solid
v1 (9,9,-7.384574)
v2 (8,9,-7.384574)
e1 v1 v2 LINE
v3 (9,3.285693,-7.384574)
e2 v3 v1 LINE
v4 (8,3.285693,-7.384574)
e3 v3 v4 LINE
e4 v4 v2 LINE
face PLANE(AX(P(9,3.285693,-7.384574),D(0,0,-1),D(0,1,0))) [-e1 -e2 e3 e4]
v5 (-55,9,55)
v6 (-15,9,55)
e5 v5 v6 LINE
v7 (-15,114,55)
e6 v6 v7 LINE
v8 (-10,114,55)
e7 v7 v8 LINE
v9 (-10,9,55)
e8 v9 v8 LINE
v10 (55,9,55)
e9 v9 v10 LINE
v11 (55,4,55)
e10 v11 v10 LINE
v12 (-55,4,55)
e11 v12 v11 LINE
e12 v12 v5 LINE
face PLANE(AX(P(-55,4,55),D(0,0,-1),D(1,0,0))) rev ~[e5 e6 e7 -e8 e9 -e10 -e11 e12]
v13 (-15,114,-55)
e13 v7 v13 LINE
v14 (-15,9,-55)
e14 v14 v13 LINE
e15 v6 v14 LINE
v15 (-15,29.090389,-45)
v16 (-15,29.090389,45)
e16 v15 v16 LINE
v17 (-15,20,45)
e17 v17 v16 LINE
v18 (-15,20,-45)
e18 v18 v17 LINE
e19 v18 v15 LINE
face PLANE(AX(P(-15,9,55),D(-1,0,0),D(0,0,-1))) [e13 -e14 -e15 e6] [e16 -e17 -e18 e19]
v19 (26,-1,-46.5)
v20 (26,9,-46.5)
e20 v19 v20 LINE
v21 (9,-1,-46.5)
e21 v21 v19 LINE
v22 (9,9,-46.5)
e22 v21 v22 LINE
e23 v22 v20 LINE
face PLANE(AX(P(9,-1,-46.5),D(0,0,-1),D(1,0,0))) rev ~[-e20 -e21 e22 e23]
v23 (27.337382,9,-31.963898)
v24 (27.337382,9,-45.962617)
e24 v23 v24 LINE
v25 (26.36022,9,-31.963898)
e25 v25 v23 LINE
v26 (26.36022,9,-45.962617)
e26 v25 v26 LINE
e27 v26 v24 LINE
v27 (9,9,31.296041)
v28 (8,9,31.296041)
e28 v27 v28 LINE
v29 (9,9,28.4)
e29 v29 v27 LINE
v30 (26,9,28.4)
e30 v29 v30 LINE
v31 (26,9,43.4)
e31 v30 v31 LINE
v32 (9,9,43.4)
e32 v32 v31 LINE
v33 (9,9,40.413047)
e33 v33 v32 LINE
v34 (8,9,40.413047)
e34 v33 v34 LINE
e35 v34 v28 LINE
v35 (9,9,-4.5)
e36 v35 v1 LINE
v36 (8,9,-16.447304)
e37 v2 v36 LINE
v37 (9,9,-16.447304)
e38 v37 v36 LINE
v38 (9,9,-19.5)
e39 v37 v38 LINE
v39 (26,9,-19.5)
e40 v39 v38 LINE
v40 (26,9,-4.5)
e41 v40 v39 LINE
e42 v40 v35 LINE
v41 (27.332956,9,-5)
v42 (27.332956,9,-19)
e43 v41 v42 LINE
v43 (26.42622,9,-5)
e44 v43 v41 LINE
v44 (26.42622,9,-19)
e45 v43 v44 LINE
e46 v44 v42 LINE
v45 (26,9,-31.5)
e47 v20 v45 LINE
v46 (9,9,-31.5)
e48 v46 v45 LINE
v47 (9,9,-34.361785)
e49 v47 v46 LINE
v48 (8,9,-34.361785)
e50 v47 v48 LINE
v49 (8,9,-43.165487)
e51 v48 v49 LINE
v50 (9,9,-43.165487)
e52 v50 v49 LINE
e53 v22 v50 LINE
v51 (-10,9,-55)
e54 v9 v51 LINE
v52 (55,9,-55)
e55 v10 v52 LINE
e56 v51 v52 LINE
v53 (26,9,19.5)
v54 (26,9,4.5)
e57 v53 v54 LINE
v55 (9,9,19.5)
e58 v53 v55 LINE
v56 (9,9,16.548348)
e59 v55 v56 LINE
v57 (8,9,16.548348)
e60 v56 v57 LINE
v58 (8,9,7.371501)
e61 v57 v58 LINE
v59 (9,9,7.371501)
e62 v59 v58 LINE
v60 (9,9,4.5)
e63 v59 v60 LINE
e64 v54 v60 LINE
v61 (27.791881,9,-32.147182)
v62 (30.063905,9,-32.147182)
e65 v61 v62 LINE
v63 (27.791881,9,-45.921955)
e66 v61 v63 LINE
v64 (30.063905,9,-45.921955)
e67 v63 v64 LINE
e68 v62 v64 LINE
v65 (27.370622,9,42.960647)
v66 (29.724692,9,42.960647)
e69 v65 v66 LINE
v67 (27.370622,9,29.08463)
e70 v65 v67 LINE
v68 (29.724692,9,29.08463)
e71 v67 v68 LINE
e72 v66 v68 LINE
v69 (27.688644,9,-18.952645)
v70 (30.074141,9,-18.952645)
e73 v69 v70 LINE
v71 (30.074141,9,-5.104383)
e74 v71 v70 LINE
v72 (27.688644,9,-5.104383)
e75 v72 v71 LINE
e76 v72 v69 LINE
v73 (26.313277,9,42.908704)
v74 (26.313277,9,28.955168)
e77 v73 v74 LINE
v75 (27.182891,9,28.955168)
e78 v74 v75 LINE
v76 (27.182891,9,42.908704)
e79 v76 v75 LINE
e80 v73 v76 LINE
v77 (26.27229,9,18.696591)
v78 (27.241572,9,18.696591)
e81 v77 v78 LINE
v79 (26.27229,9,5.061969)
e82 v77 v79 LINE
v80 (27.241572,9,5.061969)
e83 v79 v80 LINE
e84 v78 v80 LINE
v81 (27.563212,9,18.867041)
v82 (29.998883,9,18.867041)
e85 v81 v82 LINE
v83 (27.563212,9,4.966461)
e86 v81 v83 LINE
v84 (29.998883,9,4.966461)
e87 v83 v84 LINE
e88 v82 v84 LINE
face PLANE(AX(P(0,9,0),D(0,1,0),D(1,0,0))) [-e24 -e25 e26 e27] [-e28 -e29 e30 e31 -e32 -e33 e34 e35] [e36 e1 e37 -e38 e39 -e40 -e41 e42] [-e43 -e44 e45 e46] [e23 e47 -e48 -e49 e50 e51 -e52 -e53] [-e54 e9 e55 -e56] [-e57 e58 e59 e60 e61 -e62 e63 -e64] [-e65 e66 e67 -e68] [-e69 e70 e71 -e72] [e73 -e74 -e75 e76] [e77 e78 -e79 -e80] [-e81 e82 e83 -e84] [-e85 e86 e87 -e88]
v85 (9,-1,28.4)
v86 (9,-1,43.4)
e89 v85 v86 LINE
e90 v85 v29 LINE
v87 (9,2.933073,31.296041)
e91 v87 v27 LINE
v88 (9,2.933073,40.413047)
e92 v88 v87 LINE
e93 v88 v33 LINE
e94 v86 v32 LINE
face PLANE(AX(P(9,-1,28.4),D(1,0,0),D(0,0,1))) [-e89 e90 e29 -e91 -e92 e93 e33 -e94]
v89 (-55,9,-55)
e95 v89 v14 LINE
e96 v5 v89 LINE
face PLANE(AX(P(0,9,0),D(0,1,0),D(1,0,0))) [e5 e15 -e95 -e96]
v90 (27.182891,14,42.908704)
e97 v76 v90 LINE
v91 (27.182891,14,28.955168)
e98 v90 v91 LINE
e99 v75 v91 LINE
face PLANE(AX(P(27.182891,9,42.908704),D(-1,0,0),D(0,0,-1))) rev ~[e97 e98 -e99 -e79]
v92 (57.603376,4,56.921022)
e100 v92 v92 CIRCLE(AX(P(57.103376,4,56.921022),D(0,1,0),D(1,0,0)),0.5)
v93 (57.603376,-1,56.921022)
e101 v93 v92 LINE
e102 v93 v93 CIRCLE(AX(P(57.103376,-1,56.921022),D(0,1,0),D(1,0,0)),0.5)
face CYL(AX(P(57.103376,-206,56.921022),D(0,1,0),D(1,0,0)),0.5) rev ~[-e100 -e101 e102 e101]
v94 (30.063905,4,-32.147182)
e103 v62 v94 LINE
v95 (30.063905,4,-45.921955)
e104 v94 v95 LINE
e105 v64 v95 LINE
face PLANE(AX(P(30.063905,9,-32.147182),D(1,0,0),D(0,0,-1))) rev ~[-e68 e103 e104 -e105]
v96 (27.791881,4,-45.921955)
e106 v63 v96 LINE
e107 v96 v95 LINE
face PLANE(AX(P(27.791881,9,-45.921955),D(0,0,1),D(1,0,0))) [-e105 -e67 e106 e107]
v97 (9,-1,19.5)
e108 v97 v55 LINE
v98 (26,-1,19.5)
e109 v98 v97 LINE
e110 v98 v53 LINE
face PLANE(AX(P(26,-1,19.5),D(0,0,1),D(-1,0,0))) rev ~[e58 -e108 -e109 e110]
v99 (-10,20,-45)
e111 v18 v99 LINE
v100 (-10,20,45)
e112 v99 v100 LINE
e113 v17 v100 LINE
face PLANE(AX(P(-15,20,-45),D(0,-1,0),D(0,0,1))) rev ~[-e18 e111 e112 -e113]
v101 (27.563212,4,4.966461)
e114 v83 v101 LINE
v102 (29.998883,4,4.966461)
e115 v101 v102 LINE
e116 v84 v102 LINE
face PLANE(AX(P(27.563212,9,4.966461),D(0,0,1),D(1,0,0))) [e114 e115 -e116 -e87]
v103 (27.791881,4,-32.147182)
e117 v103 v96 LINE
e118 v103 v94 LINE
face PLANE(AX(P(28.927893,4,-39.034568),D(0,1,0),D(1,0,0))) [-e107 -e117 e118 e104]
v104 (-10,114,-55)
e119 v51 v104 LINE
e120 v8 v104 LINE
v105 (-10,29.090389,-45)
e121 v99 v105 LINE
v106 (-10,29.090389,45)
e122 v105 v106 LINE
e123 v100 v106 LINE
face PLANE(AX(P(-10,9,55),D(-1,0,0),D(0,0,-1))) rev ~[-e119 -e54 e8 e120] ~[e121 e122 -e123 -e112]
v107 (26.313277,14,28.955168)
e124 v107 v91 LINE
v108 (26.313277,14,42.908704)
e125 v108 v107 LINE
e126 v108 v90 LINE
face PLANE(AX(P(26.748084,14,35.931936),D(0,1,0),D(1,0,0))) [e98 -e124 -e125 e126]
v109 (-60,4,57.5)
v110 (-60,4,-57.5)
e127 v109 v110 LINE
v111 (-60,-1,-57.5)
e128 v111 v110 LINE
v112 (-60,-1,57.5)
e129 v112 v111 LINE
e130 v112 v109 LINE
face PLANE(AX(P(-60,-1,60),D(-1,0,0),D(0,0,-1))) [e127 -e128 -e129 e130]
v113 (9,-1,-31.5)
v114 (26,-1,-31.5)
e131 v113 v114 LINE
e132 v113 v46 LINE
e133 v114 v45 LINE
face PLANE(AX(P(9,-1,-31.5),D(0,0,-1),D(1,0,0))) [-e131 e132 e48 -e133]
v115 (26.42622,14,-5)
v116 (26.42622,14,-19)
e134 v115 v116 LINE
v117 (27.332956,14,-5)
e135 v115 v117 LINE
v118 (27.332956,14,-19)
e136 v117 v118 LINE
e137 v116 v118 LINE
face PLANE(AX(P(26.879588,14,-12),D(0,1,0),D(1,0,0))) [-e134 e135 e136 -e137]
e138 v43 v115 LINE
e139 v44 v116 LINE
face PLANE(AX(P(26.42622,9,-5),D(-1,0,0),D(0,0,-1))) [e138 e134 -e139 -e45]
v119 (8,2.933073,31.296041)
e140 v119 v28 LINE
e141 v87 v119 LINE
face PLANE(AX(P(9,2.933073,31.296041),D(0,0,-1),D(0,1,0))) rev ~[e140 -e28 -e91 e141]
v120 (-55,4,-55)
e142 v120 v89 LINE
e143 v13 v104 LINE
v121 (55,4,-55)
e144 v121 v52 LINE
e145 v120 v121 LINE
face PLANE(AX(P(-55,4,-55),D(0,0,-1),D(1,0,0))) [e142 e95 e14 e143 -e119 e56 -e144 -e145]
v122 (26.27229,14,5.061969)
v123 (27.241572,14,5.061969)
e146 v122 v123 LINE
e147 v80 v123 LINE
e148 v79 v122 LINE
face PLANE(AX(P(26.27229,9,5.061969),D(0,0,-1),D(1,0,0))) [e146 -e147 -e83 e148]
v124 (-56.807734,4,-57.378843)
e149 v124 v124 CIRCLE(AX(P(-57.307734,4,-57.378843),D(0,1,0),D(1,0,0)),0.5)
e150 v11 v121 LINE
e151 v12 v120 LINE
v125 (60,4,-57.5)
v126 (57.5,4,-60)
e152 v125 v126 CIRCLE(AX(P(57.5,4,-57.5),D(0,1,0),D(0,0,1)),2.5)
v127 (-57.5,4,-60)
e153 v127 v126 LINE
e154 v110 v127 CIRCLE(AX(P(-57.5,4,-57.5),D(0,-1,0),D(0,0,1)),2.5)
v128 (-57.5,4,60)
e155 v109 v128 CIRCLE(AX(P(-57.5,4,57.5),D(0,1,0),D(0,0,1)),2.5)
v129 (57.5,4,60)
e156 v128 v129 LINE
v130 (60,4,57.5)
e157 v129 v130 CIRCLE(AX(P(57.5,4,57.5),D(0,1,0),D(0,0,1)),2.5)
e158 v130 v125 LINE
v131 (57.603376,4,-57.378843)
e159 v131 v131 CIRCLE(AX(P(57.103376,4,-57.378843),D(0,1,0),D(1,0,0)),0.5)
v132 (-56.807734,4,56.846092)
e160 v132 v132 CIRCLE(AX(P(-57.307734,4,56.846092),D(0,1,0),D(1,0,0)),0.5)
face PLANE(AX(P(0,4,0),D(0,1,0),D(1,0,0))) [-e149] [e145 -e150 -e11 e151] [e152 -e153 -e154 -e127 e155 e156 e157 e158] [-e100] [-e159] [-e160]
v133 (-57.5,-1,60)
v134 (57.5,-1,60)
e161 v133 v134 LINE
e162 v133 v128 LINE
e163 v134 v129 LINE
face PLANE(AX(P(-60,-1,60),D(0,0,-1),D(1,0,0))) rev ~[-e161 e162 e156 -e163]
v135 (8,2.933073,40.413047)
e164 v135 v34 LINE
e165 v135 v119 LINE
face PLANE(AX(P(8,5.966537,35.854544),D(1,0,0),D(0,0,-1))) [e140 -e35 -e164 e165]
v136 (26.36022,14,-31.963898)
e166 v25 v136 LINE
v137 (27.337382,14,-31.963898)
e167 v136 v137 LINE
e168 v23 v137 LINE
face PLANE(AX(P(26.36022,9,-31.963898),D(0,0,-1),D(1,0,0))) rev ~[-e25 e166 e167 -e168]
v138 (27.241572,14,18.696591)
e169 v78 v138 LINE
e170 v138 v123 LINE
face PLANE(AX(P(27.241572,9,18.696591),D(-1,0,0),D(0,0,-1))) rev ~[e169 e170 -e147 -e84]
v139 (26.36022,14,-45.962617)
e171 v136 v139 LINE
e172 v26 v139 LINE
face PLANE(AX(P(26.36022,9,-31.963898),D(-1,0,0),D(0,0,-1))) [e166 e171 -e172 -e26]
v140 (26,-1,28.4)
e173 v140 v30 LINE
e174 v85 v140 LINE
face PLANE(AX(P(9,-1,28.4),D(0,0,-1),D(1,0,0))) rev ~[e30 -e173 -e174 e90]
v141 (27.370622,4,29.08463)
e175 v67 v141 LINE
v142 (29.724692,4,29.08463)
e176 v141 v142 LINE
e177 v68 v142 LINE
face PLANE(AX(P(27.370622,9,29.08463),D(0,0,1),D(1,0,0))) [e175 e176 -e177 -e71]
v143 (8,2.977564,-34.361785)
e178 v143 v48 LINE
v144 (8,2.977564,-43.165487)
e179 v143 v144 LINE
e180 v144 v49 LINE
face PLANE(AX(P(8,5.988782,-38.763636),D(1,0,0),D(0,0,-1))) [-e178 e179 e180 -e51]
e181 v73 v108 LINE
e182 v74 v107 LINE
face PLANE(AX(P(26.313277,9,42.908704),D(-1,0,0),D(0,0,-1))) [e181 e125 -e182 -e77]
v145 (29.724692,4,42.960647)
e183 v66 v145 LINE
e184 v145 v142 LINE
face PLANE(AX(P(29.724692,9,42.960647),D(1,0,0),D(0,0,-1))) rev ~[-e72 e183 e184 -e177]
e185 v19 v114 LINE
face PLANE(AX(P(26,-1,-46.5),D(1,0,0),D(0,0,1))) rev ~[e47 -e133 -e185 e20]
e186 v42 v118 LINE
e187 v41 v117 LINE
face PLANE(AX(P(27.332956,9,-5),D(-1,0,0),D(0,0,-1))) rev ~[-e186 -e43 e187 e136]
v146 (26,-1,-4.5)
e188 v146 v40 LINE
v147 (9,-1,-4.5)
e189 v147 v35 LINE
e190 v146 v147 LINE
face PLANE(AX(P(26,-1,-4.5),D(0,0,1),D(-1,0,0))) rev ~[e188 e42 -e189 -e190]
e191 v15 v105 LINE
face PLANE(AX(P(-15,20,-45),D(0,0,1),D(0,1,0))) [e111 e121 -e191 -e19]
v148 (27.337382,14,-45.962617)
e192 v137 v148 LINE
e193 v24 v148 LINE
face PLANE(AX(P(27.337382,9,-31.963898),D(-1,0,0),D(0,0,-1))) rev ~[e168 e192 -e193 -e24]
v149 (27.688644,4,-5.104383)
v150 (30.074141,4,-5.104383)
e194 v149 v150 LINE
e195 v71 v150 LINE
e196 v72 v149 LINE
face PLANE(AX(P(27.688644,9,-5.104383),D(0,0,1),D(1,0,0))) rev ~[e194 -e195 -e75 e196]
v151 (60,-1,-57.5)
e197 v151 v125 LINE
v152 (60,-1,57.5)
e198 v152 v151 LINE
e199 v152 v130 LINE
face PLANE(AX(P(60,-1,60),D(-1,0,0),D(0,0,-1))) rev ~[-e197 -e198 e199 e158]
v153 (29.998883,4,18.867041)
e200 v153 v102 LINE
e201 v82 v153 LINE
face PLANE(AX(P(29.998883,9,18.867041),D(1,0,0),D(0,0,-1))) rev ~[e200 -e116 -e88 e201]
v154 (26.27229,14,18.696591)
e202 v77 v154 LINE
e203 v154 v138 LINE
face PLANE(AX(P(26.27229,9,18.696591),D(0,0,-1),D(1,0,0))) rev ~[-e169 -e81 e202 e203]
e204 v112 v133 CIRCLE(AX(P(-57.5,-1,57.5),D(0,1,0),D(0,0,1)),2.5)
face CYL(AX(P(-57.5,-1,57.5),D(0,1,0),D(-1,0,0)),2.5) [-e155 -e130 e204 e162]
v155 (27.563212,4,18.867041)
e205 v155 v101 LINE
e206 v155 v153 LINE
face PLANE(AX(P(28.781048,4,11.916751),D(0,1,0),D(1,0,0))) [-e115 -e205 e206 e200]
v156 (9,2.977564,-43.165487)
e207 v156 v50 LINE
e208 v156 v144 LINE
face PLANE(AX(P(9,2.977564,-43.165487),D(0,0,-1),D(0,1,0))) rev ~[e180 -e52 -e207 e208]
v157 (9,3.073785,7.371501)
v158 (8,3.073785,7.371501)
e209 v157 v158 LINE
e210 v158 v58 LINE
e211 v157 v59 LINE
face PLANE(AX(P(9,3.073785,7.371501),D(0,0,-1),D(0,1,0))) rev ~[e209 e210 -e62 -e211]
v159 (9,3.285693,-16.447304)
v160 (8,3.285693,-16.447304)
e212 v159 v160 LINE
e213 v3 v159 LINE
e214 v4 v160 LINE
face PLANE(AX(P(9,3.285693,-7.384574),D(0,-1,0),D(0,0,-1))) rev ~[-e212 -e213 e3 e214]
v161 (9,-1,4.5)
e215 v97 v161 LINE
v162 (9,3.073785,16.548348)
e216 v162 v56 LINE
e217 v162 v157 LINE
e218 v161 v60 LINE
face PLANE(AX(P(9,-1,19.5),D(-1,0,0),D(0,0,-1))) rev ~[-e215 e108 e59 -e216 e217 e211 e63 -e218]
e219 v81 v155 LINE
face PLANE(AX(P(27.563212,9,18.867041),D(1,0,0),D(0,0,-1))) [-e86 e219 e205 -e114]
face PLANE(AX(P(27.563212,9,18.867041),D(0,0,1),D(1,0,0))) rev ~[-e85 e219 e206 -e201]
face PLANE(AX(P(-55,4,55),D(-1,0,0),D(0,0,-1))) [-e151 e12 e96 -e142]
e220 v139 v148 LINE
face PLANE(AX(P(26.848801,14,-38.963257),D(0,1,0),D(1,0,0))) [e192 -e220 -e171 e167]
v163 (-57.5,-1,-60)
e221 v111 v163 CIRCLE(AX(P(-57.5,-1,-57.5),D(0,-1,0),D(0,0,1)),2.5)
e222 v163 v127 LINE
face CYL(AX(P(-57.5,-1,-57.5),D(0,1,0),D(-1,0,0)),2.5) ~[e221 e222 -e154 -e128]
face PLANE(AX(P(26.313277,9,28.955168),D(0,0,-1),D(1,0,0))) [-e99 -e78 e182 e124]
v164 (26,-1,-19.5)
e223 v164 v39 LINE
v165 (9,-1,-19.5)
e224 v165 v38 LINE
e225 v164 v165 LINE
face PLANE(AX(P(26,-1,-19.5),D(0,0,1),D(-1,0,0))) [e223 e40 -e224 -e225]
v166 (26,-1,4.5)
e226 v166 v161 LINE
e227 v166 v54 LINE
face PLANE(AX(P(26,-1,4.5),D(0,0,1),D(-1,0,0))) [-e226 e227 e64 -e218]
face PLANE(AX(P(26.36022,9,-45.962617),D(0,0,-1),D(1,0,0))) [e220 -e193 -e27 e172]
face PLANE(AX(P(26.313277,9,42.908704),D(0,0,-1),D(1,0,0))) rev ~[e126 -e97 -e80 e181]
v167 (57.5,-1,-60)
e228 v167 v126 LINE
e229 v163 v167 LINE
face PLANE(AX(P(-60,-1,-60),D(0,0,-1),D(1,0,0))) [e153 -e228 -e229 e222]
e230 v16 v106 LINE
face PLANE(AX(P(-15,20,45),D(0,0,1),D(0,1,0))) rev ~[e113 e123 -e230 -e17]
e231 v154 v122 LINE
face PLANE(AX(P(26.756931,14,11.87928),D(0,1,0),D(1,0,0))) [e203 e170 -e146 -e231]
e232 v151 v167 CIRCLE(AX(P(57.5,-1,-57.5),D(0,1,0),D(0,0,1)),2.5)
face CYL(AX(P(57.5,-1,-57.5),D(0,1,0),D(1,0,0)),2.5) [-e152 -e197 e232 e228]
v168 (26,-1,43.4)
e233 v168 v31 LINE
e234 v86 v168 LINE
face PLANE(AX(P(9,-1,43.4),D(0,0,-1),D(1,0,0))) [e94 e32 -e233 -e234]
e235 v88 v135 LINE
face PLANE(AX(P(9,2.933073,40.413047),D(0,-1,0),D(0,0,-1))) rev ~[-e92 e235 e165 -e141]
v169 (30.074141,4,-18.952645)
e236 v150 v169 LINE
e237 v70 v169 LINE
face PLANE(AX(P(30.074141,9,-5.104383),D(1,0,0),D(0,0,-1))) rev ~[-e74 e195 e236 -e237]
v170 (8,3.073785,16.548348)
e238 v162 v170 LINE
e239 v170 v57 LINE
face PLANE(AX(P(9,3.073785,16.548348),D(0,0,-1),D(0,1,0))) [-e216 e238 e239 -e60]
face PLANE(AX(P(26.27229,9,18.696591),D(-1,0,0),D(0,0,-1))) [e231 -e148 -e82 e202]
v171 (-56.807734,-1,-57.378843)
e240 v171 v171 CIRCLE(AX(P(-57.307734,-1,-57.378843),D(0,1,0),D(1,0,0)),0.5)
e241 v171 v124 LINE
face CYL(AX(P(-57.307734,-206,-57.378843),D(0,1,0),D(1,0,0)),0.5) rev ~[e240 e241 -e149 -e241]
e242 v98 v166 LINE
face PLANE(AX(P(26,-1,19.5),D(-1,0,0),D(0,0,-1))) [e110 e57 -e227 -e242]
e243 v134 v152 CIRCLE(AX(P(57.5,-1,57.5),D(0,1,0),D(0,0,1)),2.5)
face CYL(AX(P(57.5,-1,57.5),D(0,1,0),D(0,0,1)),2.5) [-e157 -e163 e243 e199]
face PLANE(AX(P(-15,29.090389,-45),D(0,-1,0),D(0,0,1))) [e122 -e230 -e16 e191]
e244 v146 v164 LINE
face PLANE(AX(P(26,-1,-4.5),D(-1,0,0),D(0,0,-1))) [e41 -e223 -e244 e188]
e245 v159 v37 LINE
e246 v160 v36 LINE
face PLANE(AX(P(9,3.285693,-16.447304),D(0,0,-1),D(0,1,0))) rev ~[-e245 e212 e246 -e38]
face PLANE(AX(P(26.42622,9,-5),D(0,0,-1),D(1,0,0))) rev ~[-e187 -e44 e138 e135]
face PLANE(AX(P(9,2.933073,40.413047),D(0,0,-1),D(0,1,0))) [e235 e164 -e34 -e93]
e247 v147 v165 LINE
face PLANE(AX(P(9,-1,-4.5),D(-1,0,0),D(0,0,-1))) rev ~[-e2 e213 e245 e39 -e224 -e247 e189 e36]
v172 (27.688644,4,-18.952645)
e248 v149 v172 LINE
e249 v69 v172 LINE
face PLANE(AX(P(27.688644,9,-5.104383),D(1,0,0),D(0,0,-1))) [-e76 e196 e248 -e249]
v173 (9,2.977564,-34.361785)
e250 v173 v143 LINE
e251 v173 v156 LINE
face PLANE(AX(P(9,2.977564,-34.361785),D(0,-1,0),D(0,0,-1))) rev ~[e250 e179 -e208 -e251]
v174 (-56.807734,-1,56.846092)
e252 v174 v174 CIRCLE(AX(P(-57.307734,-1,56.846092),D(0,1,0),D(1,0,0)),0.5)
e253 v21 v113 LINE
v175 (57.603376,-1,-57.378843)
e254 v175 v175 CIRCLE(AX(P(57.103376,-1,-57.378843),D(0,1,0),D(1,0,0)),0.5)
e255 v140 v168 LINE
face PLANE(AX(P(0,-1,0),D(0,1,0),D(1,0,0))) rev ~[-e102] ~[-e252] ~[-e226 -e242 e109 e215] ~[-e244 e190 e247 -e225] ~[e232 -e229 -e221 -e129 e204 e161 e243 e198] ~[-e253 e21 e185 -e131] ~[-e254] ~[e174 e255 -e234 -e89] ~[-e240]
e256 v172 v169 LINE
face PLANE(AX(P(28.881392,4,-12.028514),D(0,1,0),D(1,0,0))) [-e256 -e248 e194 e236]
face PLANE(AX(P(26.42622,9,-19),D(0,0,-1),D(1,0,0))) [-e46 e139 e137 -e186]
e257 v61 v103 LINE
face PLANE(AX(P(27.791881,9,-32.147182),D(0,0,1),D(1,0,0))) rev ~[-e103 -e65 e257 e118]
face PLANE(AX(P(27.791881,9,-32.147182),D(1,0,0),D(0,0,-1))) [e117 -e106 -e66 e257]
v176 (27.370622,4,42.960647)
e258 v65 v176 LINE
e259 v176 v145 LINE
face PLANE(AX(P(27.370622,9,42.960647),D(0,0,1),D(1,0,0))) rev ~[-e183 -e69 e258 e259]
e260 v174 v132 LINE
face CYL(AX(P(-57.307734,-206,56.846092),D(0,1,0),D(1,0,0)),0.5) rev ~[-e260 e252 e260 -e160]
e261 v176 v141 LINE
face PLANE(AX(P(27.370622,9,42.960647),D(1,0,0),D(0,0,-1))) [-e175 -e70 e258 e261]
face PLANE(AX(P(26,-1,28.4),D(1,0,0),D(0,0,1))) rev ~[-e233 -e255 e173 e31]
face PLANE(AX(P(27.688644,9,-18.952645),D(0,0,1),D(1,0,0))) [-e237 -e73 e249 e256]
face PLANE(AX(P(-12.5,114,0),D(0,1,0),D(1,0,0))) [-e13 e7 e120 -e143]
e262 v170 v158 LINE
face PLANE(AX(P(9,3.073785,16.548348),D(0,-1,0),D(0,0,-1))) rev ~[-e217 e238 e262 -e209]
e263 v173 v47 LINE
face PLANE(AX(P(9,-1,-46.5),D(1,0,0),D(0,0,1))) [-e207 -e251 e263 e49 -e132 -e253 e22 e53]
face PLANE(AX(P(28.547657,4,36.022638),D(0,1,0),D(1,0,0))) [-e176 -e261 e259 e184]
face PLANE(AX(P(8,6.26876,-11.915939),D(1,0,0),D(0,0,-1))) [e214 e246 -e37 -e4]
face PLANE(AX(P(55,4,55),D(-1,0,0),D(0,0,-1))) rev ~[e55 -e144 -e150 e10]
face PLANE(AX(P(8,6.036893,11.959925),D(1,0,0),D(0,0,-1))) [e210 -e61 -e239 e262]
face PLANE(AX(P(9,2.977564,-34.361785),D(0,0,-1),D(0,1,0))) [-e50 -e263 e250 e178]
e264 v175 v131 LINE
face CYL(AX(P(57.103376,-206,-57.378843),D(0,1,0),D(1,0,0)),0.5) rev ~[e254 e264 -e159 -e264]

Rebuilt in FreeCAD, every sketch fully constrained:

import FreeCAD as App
import Part
import Sketcher
from FreeCAD import Vector
Q = App.Units.Quantity


def edges_at(feature, points):
    """Names of the edges that pass closest to the given points."""
    edges = feature.Shape.Edges
    near = lambda p: min(range(len(edges)), key=lambda i: edges[i].distToShape(Part.Vertex(*p))[0])
    return sorted({f"Edge{near(p) + 1}" for p in points})

doc = App.newDocument("Part")
body = doc.addObject("PartDesign::Body", "Body")

# Sketch on XZ plane
sketch1 = body.newObject("Sketcher::SketchObject", "Sketch")
sketch1.AttachmentSupport = (doc.getObject("XZ_Plane"), [""])
sketch1.MapMode = "FlatFace"
sketch1.addGeometry([
    Part.LineSegment(Vector(-60, -60, 0), Vector(-60, 60, 0)),
    Part.LineSegment(Vector(-60, 60, 0), Vector(60, 60, 0)),
    Part.LineSegment(Vector(60, 60, 0), Vector(60, -60, 0)),
    Part.LineSegment(Vector(60, -60, 0), Vector(-60, -60, 0)),
], False)
sketch1.addConstraint([
    Sketcher.Constraint("Coincident", 0, 2, 1, 1),
    Sketcher.Constraint("Coincident", 1, 2, 2, 1),
    Sketcher.Constraint("Coincident", 2, 2, 3, 1),
    Sketcher.Constraint("Coincident", 3, 2, 0, 1),
    Sketcher.Constraint("Vertical", 0),
    Sketcher.Constraint("Horizontal", 1),
    Sketcher.Constraint("Vertical", 2),
    Sketcher.Constraint("Horizontal", 3),
    Sketcher.Constraint("Symmetric", 0, 2, 2, 2, -1, 1),
    Sketcher.Constraint("Equal", 3, 0),
    Sketcher.Constraint("DistanceX", 1, 1, 1, 2, Q("120 mm")),
])
pad1 = body.newObject("PartDesign::Pad", "Pad")
pad1.Profile = sketch1
pad1.Type = "TwoLengths"
pad1.Length = 4
pad1.Length2 = 1
pad1.Reversed = True
doc.recompute()

fillet = body.newObject("PartDesign::Fillet", "Fillet")
fillet.Base = (pad1, edges_at(pad1, [
    (-60, 1.5, -60),
    (60, 1.5, -60),
    (60, 1.5, 60),
    (-60, 1.5, 60),
]))
fillet.Radius = 2.5

# Sketch on XZ plane
sketch2 = body.newObject("Sketcher::SketchObject", "Sketch001")
sketch2.AttachmentSupport = (doc.getObject("XZ_Plane"), [""])
sketch2.MapMode = "FlatFace"
sketch2.AttachmentOffset = App.Placement(Vector(0, 0, -4), App.Rotation())
sketch2.addGeometry([
    Part.LineSegment(Vector(-55, -55, 0), Vector(-55, 55, 0)),
    Part.LineSegment(Vector(-55, 55, 0), Vector(55, 55, 0)),
    Part.LineSegment(Vector(55, 55, 0), Vector(55, -55, 0)),
    Part.LineSegment(Vector(55, -55, 0), Vector(-55, -55, 0)),
], False)
sketch2.addConstraint([
    Sketcher.Constraint("Coincident", 0, 2, 1, 1),
    Sketcher.Constraint("Coincident", 1, 2, 2, 1),
    Sketcher.Constraint("Coincident", 2, 2, 3, 1),
    Sketcher.Constraint("Coincident", 3, 2, 0, 1),
    Sketcher.Constraint("Vertical", 0),
    Sketcher.Constraint("Horizontal", 1),
    Sketcher.Constraint("Vertical", 2),
    Sketcher.Constraint("Horizontal", 3),
    Sketcher.Constraint("Symmetric", 0, 2, 2, 2, -1, 1),
    Sketcher.Constraint("Equal", 3, 0),
    Sketcher.Constraint("DistanceX", 1, 1, 1, 2, Q("110 mm")),
])
pad2 = body.newObject("PartDesign::Pad", "Pad001")
pad2.Profile = sketch2
pad2.Length = 5
pad2.Reversed = True

# Sketch on XZ plane
sketch3 = body.newObject("Sketcher::SketchObject", "Sketch002")
sketch3.AttachmentSupport = (doc.getObject("XZ_Plane"), [""])
sketch3.MapMode = "FlatFace"
sketch3.AttachmentOffset = App.Placement(Vector(0, 0, -9), App.Rotation())
sketch3.addGeometry([
    Part.LineSegment(Vector(-15, -55, 0), Vector(-15, 55, 0)),
    Part.LineSegment(Vector(-15, 55, 0), Vector(-10, 55, 0)),
    Part.LineSegment(Vector(-10, 55, 0), Vector(-10, -55, 0)),
    Part.LineSegment(Vector(-10, -55, 0), Vector(-15, -55, 0)),
], False)
sketch3.addConstraint([
    Sketcher.Constraint("Coincident", 0, 2, 1, 1),
    Sketcher.Constraint("Coincident", 1, 2, 2, 1),
    Sketcher.Constraint("Coincident", 2, 2, 3, 1),
    Sketcher.Constraint("Coincident", 3, 2, 0, 1),
    Sketcher.Constraint("Vertical", 0),
    Sketcher.Constraint("Horizontal", 1),
    Sketcher.Constraint("Vertical", 2),
    Sketcher.Constraint("Horizontal", 3),
    Sketcher.Constraint("DistanceX", 1, 1, 1, 2, Q("5 mm")),
    Sketcher.Constraint("DistanceY", 0, 1, 0, 2, Q("110 mm")),
    Sketcher.Constraint("DistanceX", 0, 2, -1, 1, Q("15 mm")),
    Sketcher.Constraint("DistanceY", -1, 1, 0, 2, Q("55 mm")),
])
pad3 = body.newObject("PartDesign::Pad", "Pad002")
pad3.Profile = sketch3
pad3.Length = 105
pad3.Reversed = True

# Sketch on YZ plane
sketch4 = body.newObject("Sketcher::SketchObject", "Sketch003")
sketch4.AttachmentSupport = (doc.getObject("YZ_Plane"), [""])
sketch4.MapMode = "FlatFace"
sketch4.AttachmentOffset = App.Placement(Vector(0, 0, -15), App.Rotation())
sketch4.addGeometry([
    Part.LineSegment(Vector(29, -45, 0), Vector(20, -45, 0)),
    Part.LineSegment(Vector(20, -45, 0), Vector(20, 45, 0)),
    Part.LineSegment(Vector(20, 45, 0), Vector(29, 45, 0)),
    Part.LineSegment(Vector(29, 45, 0), Vector(29, -45, 0)),
], False)
sketch4.addConstraint([
    Sketcher.Constraint("Coincident", 0, 2, 1, 1),
    Sketcher.Constraint("Coincident", 1, 2, 2, 1),
    Sketcher.Constraint("Coincident", 2, 2, 3, 1),
    Sketcher.Constraint("Coincident", 3, 2, 0, 1),
    Sketcher.Constraint("Horizontal", 0),
    Sketcher.Constraint("Vertical", 1),
    Sketcher.Constraint("Horizontal", 2),
    Sketcher.Constraint("Vertical", 3),
    Sketcher.Constraint("DistanceY", 1, 1, 1, 2, Q("90 mm")),
    Sketcher.Constraint("DistanceX", -1, 1, 0, 2, Q("20 mm")),
    Sketcher.Constraint("DistanceY", 0, 2, -1, 1, Q("45 mm")),
    Sketcher.Constraint("DistanceX", 0, 2, 0, 1, Q("9.090389 mm")),
])
pocket1 = body.newObject("PartDesign::Pocket", "Pocket")
pocket1.Profile = sketch4
pocket1.Length = 5
pocket1.Reversed = True

# Sketch on XZ plane
sketch5 = body.newObject("Sketcher::SketchObject", "Sketch004")
sketch5.AttachmentSupport = (doc.getObject("XZ_Plane"), [""])
sketch5.MapMode = "FlatFace"
sketch5.AttachmentOffset = App.Placement(Vector(0, 0, 1), App.Rotation())
sketch5.addGeometry([
    Part.Circle(Vector(-57.31, -57.38, 0), Vector(0, 0, 1), 0.07),
    Part.Circle(Vector(57.1, -57.38, 0), Vector(0, 0, 1), 0.07),
    Part.Circle(Vector(57.1, 56.92, 0), Vector(0, 0, 1), 0.07),
    Part.Circle(Vector(-57.31, 56.92, 0), Vector(0, 0, 1), 0.07),
], False)
sketch5.addConstraint([
    Sketcher.Constraint("Equal", 0, 1),
    Sketcher.Constraint("Equal", 1, 2),
    Sketcher.Constraint("Equal", 2, 3),
    Sketcher.Constraint("Horizontal", 0, 3, 1, 3),
    Sketcher.Constraint("Horizontal", 2, 3, 3, 3),
    Sketcher.Constraint("Vertical", 1, 3, 2, 3),
    Sketcher.Constraint("Vertical", 0, 3, 3, 3),
    Sketcher.Constraint("Diameter", 0, Q("0.14986 mm")),
    Sketcher.Constraint("DistanceX", 0, 3, 1, 3, Q("114.41111 mm")),
    Sketcher.Constraint("DistanceX", 0, 3, -1, 1, Q("57.307734 mm")),
    Sketcher.Constraint("DistanceY", 0, 3, -1, 1, Q("57.378843 mm")),
    Sketcher.Constraint("DistanceY", -1, 1, 2, 3, Q("56.921022 mm")),
])
doc.recompute()
hole = body.newObject("PartDesign::Hole", "Hole")
hole.Profile = sketch5
hole.ThreadType = "None"
hole.Diameter = 0.14986
hole.DepthType = "ThroughAll"

# Sketch on XZ plane
sketch6 = body.newObject("Sketcher::SketchObject", "Sketch005")
sketch6.AttachmentSupport = (doc.getObject("XZ_Plane"), [""])
sketch6.MapMode = "FlatFace"
sketch6.AttachmentOffset = App.Placement(Vector(0, 0, 1), App.Rotation())
sketch6.addGeometry([
    Part.Circle(Vector(-57.3, 56.8, 0), Vector(0, 0, 1), 0.5),
    Part.Circle(Vector(57.1, 56.9, 0), Vector(0, 0, 1), 0.5),
    Part.Circle(Vector(57.1, -57.4, 0), Vector(0, 0, 1), 0.5),
    Part.Circle(Vector(-57.3, -57.4, 0), Vector(0, 0, 1), 0.5),
], False)
sketch6.addConstraint([
    Sketcher.Constraint("Equal", 0, 1),
    Sketcher.Constraint("Equal", 1, 2),
    Sketcher.Constraint("Equal", 2, 3),
    Sketcher.Constraint("Horizontal", 2, 3, 3, 3),
    Sketcher.Constraint("Vertical", 1, 3, 2, 3),
    Sketcher.Constraint("Vertical", 0, 3, 3, 3),
    Sketcher.Constraint("Diameter", 0, Q("1 mm")),
    Sketcher.Constraint("DistanceX", 0, 3, 1, 3, Q("114.41111 mm")),
    Sketcher.Constraint("DistanceY", 0, 3, 1, 3, Q("0.07493 mm")),
    Sketcher.Constraint("DistanceX", 0, 3, -1, 1, Q("57.307734 mm")),
    Sketcher.Constraint("DistanceY", -1, 1, 0, 3, Q("56.846092 mm")),
    Sketcher.Constraint("DistanceY", 2, 3, -1, 1, Q("57.378843 mm")),
])
doc.recompute()
hole2 = body.newObject("PartDesign::Hole", "Hole001")
hole2.Profile = sketch6
hole2.ThreadType = "None"
hole2.Diameter = 1
hole2.DepthType = "ThroughAll"

# Sketch on XZ plane
sketch7 = body.newObject("Sketcher::SketchObject", "Sketch006")
sketch7.AttachmentSupport = (doc.getObject("XZ_Plane"), [""])
sketch7.MapMode = "FlatFace"
sketch7.AttachmentOffset = App.Placement(Vector(0, 0, 1), App.Rotation())
sketch7.addGeometry([
    Part.LineSegment(Vector(9, 43, 0), Vector(9, 28, 0)),
    Part.LineSegment(Vector(9, 28, 0), Vector(26, 28, 0)),
    Part.LineSegment(Vector(26, 28, 0), Vector(26, 43, 0)),
    Part.LineSegment(Vector(26, 43, 0), Vector(9, 43, 0)),
], False)
sketch7.addConstraint([
    Sketcher.Constraint("Coincident", 0, 2, 1, 1),
    Sketcher.Constraint("Coincident", 1, 2, 2, 1),
    Sketcher.Constraint("Coincident", 2, 2, 3, 1),
    Sketcher.Constraint("Coincident", 3, 2, 0, 1),
    Sketcher.Constraint("Vertical", 0),
    Sketcher.Constraint("Horizontal", 1),
    Sketcher.Constraint("Vertical", 2),
    Sketcher.Constraint("Horizontal", 3),
    Sketcher.Constraint("DistanceX", 1, 1, 1, 2, Q("17 mm")),
    Sketcher.Constraint("DistanceY", 0, 2, 0, 1, Q("15 mm")),
    Sketcher.Constraint("DistanceX", -1, 1, 0, 2, Q("9 mm")),
    Sketcher.Constraint("DistanceY", -1, 1, 0, 2, Q("28.4 mm")),
])
pocket2 = body.newObject("PartDesign::Pocket", "Pocket001")
pocket2.Profile = sketch7
pocket2.Length = 10

# Sketch on XZ plane
sketch8 = body.newObject("Sketcher::SketchObject", "Sketch007")
sketch8.AttachmentSupport = (doc.getObject("XZ_Plane"), [""])
sketch8.MapMode = "FlatFace"
sketch8.AttachmentOffset = App.Placement(Vector(0, 0, 1), App.Rotation())
sketch8.addGeometry([
    Part.LineSegment(Vector(26, 4, 0), Vector(26, 20, 0)),
    Part.LineSegment(Vector(26, 20, 0), Vector(9, 20, 0)),
    Part.LineSegment(Vector(9, 20, 0), Vector(9, 4, 0)),
    Part.LineSegment(Vector(9, 4, 0), Vector(26, 4, 0)),
], False)
sketch8.addConstraint([
    Sketcher.Constraint("Coincident", 0, 2, 1, 1),
    Sketcher.Constraint("Coincident", 1, 2, 2, 1),
    Sketcher.Constraint("Coincident", 2, 2, 3, 1),
    Sketcher.Constraint("Coincident", 3, 2, 0, 1),
    Sketcher.Constraint("Vertical", 0),
    Sketcher.Constraint("Horizontal", 1),
    Sketcher.Constraint("Vertical", 2),
    Sketcher.Constraint("Horizontal", 3),
    Sketcher.Constraint("DistanceX", 1, 2, 1, 1, Q("17 mm")),
    Sketcher.Constraint("DistanceY", 0, 1, 0, 2, Q("15 mm")),
    Sketcher.Constraint("DistanceX", -1, 1, 0, 2, Q("26 mm")),
    Sketcher.Constraint("DistanceY", -1, 1, 0, 2, Q("19.5 mm")),
])
pocket3 = body.newObject("PartDesign::Pocket", "Pocket002")
pocket3.Profile = sketch8
pocket3.Length = 10

# Sketch on XZ plane
sketch9 = body.newObject("Sketcher::SketchObject", "Sketch008")
sketch9.AttachmentSupport = (doc.getObject("XZ_Plane"), [""])
sketch9.MapMode = "FlatFace"
sketch9.AttachmentOffset = App.Placement(Vector(0, 0, 1), App.Rotation())
sketch9.addGeometry([
    Part.LineSegment(Vector(26, -20, 0), Vector(26, -4, 0)),
    Part.LineSegment(Vector(26, -4, 0), Vector(9, -4, 0)),
    Part.LineSegment(Vector(9, -4, 0), Vector(9, -20, 0)),
    Part.LineSegment(Vector(9, -20, 0), Vector(26, -20, 0)),
], False)
sketch9.addConstraint([
    Sketcher.Constraint("Coincident", 0, 2, 1, 1),
    Sketcher.Constraint("Coincident", 1, 2, 2, 1),
    Sketcher.Constraint("Coincident", 2, 2, 3, 1),
    Sketcher.Constraint("Coincident", 3, 2, 0, 1),
    Sketcher.Constraint("Vertical", 0),
    Sketcher.Constraint("Horizontal", 1),
    Sketcher.Constraint("Vertical", 2),
    Sketcher.Constraint("Horizontal", 3),
    Sketcher.Constraint("DistanceX", 1, 2, 1, 1, Q("17 mm")),
    Sketcher.Constraint("DistanceY", 0, 1, 0, 2, Q("15 mm")),
    Sketcher.Constraint("DistanceX", -1, 1, 0, 2, Q("26 mm")),
    Sketcher.Constraint("DistanceY", 0, 2, -1, 1, Q("4.5 mm")),
])
pocket4 = body.newObject("PartDesign::Pocket", "Pocket003")
pocket4.Profile = sketch9
pocket4.Length = 10

# Sketch on XZ plane
sketch10 = body.newObject("Sketcher::SketchObject", "Sketch009")
sketch10.AttachmentSupport = (doc.getObject("XZ_Plane"), [""])
sketch10.MapMode = "FlatFace"
sketch10.AttachmentOffset = App.Placement(Vector(0, 0, 1), App.Rotation())
sketch10.addGeometry([
    Part.LineSegment(Vector(9, -32, 0), Vector(9, -46, 0)),
    Part.LineSegment(Vector(9, -46, 0), Vector(26, -46, 0)),
    Part.LineSegment(Vector(26, -46, 0), Vector(26, -32, 0)),
    Part.LineSegment(Vector(26, -32, 0), Vector(9, -32, 0)),
], False)
sketch10.addConstraint([
    Sketcher.Constraint("Coincident", 0, 2, 1, 1),
    Sketcher.Constraint("Coincident", 1, 2, 2, 1),
    Sketcher.Constraint("Coincident", 2, 2, 3, 1),
    Sketcher.Constraint("Coincident", 3, 2, 0, 1),
    Sketcher.Constraint("Vertical", 0),
    Sketcher.Constraint("Horizontal", 1),
    Sketcher.Constraint("Vertical", 2),
    Sketcher.Constraint("Horizontal", 3),
    Sketcher.Constraint("DistanceX", 1, 1, 1, 2, Q("17 mm")),
    Sketcher.Constraint("DistanceY", 0, 2, 0, 1, Q("15 mm")),
    Sketcher.Constraint("DistanceX", -1, 1, 0, 2, Q("9 mm")),
    Sketcher.Constraint("DistanceY", 0, 2, -1, 1, Q("46.5 mm")),
])
pocket5 = body.newObject("PartDesign::Pocket", "Pocket004")
pocket5.Profile = sketch10
pocket5.Length = 10

# Sketch on XZ plane
sketch11 = body.newObject("Sketcher::SketchObject", "Sketch010")
sketch11.AttachmentSupport = (doc.getObject("XZ_Plane"), [""])
sketch11.MapMode = "FlatFace"
sketch11.AttachmentOffset = App.Placement(Vector(0, 0, -9), App.Rotation())
sketch11.addGeometry([
    Part.LineSegment(Vector(26.4, -46, 0), Vector(26.4, -32, 0)),
    Part.LineSegment(Vector(26.4, -32, 0), Vector(27.3, -32, 0)),
    Part.LineSegment(Vector(27.3, -32, 0), Vector(27.3, -46, 0)),
    Part.LineSegment(Vector(27.3, -46, 0), Vector(26.4, -46, 0)),
], False)
sketch11.addConstraint([
    Sketcher.Constraint("Coincident", 0, 2, 1, 1),
    Sketcher.Constraint("Coincident", 1, 2, 2, 1),
    Sketcher.Constraint("Coincident", 2, 2, 3, 1),
    Sketcher.Constraint("Coincident", 3, 2, 0, 1),
    Sketcher.Constraint("Vertical", 0),
    Sketcher.Constraint("Horizontal", 1),
    Sketcher.Constraint("Vertical", 2),
    Sketcher.Constraint("Horizontal", 3),
    Sketcher.Constraint("DistanceY", 0, 1, 0, 2, Q("13.998719 mm")),
    Sketcher.Constraint("DistanceX", 1, 1, 1, 2, Q("0.977162 mm")),
    Sketcher.Constraint("DistanceX", -1, 1, 0, 2, Q("26.36022 mm")),
    Sketcher.Constraint("DistanceY", 0, 2, -1, 1, Q("31.963898 mm")),
])
pad4 = body.newObject("PartDesign::Pad", "Pad003")
pad4.Profile = sketch11
pad4.Length = 5
pad4.Reversed = True

# Sketch on XZ plane
sketch12 = body.newObject("Sketcher::SketchObject", "Sketch011")
sketch12.AttachmentSupport = (doc.getObject("XZ_Plane"), [""])
sketch12.MapMode = "FlatFace"
sketch12.AttachmentOffset = App.Placement(Vector(0, 0, -9), App.Rotation())
sketch12.addGeometry([
    Part.LineSegment(Vector(27.8, -45.9, 0), Vector(27.8, -32.1, 0)),
    Part.LineSegment(Vector(27.8, -32.1, 0), Vector(30.1, -32.1, 0)),
    Part.LineSegment(Vector(30.1, -32.1, 0), Vector(30.1, -45.9, 0)),
    Part.LineSegment(Vector(30.1, -45.9, 0), Vector(27.8, -45.9, 0)),
], False)
sketch12.addConstraint([
    Sketcher.Constraint("Coincident", 0, 2, 1, 1),
    Sketcher.Constraint("Coincident", 1, 2, 2, 1),
    Sketcher.Constraint("Coincident", 2, 2, 3, 1),
    Sketcher.Constraint("Coincident", 3, 2, 0, 1),
    Sketcher.Constraint("Vertical", 0),
    Sketcher.Constraint("Horizontal", 1),
    Sketcher.Constraint("Vertical", 2),
    Sketcher.Constraint("Horizontal", 3),
    Sketcher.Constraint("DistanceX", 1, 1, 1, 2, Q("2.272024 mm")),
    Sketcher.Constraint("DistanceY", 0, 1, 0, 2, Q("13.774774 mm")),
    Sketcher.Constraint("DistanceX", -1, 1, 0, 2, Q("27.791881 mm")),
    Sketcher.Constraint("DistanceY", 0, 2, -1, 1, Q("32.147182 mm")),
])
pocket6 = body.newObject("PartDesign::Pocket", "Pocket005")
pocket6.Profile = sketch12
pocket6.Length = 5
pocket6.Reversed = True

# Sketch on XZ plane
sketch13 = body.newObject("Sketcher::SketchObject", "Sketch012")
sketch13.AttachmentSupport = (doc.getObject("XZ_Plane"), [""])
sketch13.MapMode = "FlatFace"
sketch13.AttachmentOffset = App.Placement(Vector(0, 0, -9), App.Rotation())
sketch13.addGeometry([
    Part.LineSegment(Vector(26.4, -19, 0), Vector(26.4, -5, 0)),
    Part.LineSegment(Vector(26.4, -5, 0), Vector(27.3, -5, 0)),
    Part.LineSegment(Vector(27.3, -5, 0), Vector(27.3, -19, 0)),
    Part.LineSegment(Vector(27.3, -19, 0), Vector(26.4, -19, 0)),
], False)
sketch13.addConstraint([
    Sketcher.Constraint("Coincident", 0, 2, 1, 1),
    Sketcher.Constraint("Coincident", 1, 2, 2, 1),
    Sketcher.Constraint("Coincident", 2, 2, 3, 1),
    Sketcher.Constraint("Coincident", 3, 2, 0, 1),
    Sketcher.Constraint("Vertical", 0),
    Sketcher.Constraint("Horizontal", 1),
    Sketcher.Constraint("Vertical", 2),
    Sketcher.Constraint("Horizontal", 3),
    Sketcher.Constraint("DistanceY", 0, 1, 0, 2, Q("14 mm")),
    Sketcher.Constraint("DistanceY", 0, 2, -1, 1, Q("5 mm")),
    Sketcher.Constraint("DistanceX", 1, 1, 1, 2, Q("0.906736 mm")),
    Sketcher.Constraint("DistanceX", -1, 1, 0, 2, Q("26.42622 mm")),
])
pad5 = body.newObject("PartDesign::Pad", "Pad004")
pad5.Profile = sketch13
pad5.Length = 5
pad5.Reversed = True

# Sketch on XZ plane
sketch14 = body.newObject("Sketcher::SketchObject", "Sketch013")
sketch14.AttachmentSupport = (doc.getObject("XZ_Plane"), [""])
sketch14.MapMode = "FlatFace"
sketch14.AttachmentOffset = App.Placement(Vector(0, 0, -9), App.Rotation())
sketch14.addGeometry([
    Part.LineSegment(Vector(27.7, -19, 0), Vector(27.7, -5.1, 0)),
    Part.LineSegment(Vector(27.7, -5.1, 0), Vector(30.1, -5.1, 0)),
    Part.LineSegment(Vector(30.1, -5.1, 0), Vector(30.1, -19, 0)),
    Part.LineSegment(Vector(30.1, -19, 0), Vector(27.7, -19, 0)),
], False)
sketch14.addConstraint([
    Sketcher.Constraint("Coincident", 0, 2, 1, 1),
    Sketcher.Constraint("Coincident", 1, 2, 2, 1),
    Sketcher.Constraint("Coincident", 2, 2, 3, 1),
    Sketcher.Constraint("Coincident", 3, 2, 0, 1),
    Sketcher.Constraint("Vertical", 0),
    Sketcher.Constraint("Horizontal", 1),
    Sketcher.Constraint("Vertical", 2),
    Sketcher.Constraint("Horizontal", 3),
    Sketcher.Constraint("DistanceY", 0, 1, 0, 2, Q("13.848262 mm")),
    Sketcher.Constraint("DistanceX", 1, 1, 1, 2, Q("2.385496 mm")),
    Sketcher.Constraint("DistanceX", -1, 1, 1, 2, Q("30.074141 mm")),
    Sketcher.Constraint("DistanceY", 0, 2, -1, 1, Q("5.104383 mm")),
])
pocket7 = body.newObject("PartDesign::Pocket", "Pocket006")
pocket7.Profile = sketch14
pocket7.Length = 5
pocket7.Reversed = True

# Sketch on XZ plane
sketch15 = body.newObject("Sketcher::SketchObject", "Sketch014")
sketch15.AttachmentSupport = (doc.getObject("XZ_Plane"), [""])
sketch15.MapMode = "FlatFace"
sketch15.AttachmentOffset = App.Placement(Vector(0, 0, -9), App.Rotation())
sketch15.addGeometry([
    Part.LineSegment(Vector(26.3, 5.1, 0), Vector(26.3, 18.7, 0)),
    Part.LineSegment(Vector(26.3, 18.7, 0), Vector(27.2, 18.7, 0)),
    Part.LineSegment(Vector(27.2, 18.7, 0), Vector(27.2, 5.1, 0)),
    Part.LineSegment(Vector(27.2, 5.1, 0), Vector(26.3, 5.1, 0)),
], False)
sketch15.addConstraint([
    Sketcher.Constraint("Coincident", 0, 2, 1, 1),
    Sketcher.Constraint("Coincident", 1, 2, 2, 1),
    Sketcher.Constraint("Coincident", 2, 2, 3, 1),
    Sketcher.Constraint("Coincident", 3, 2, 0, 1),
    Sketcher.Constraint("Vertical", 0),
    Sketcher.Constraint("Horizontal", 1),
    Sketcher.Constraint("Vertical", 2),
    Sketcher.Constraint("Horizontal", 3),
    Sketcher.Constraint("DistanceY", 0, 1, 0, 2, Q("13.634622 mm")),
    Sketcher.Constraint("DistanceX", 1, 1, 1, 2, Q("0.969283 mm")),
    Sketcher.Constraint("DistanceX", -1, 1, 0, 2, Q("26.27229 mm")),
    Sketcher.Constraint("DistanceY", -1, 1, 0, 2, Q("18.696591 mm")),
])
pad6 = body.newObject("PartDesign::Pad", "Pad005")
pad6.Profile = sketch15
pad6.Length = 5
pad6.Reversed = True

# Sketch on XZ plane
sketch16 = body.newObject("Sketcher::SketchObject", "Sketch015")
sketch16.AttachmentSupport = (doc.getObject("XZ_Plane"), [""])
sketch16.MapMode = "FlatFace"
sketch16.AttachmentOffset = App.Placement(Vector(0, 0, -9), App.Rotation())
sketch16.addGeometry([
    Part.LineSegment(Vector(27.6, 5, 0), Vector(27.6, 18.9, 0)),
    Part.LineSegment(Vector(27.6, 18.9, 0), Vector(30, 18.9, 0)),
    Part.LineSegment(Vector(30, 18.9, 0), Vector(30, 5, 0)),
    Part.LineSegment(Vector(30, 5, 0), Vector(27.6, 5, 0)),
], False)
sketch16.addConstraint([
    Sketcher.Constraint("Coincident", 0, 2, 1, 1),
    Sketcher.Constraint("Coincident", 1, 2, 2, 1),
    Sketcher.Constraint("Coincident", 2, 2, 3, 1),
    Sketcher.Constraint("Coincident", 3, 2, 0, 1),
    Sketcher.Constraint("Vertical", 0),
    Sketcher.Constraint("Horizontal", 1),
    Sketcher.Constraint("Vertical", 2),
    Sketcher.Constraint("Horizontal", 3),
    Sketcher.Constraint("DistanceX", 1, 1, 1, 2, Q("2.435672 mm")),
    Sketcher.Constraint("DistanceY", 0, 1, 0, 2, Q("13.90058 mm")),
    Sketcher.Constraint("DistanceX", -1, 1, 0, 2, Q("27.563212 mm")),
    Sketcher.Constraint("DistanceY", -1, 1, 0, 2, Q("18.867041 mm")),
])
pocket8 = body.newObject("PartDesign::Pocket", "Pocket007")
pocket8.Profile = sketch16
pocket8.Length = 5
pocket8.Reversed = True

# Sketch on XZ plane
sketch17 = body.newObject("Sketcher::SketchObject", "Sketch016")
sketch17.AttachmentSupport = (doc.getObject("XZ_Plane"), [""])
sketch17.MapMode = "FlatFace"
sketch17.AttachmentOffset = App.Placement(Vector(0, 0, -9), App.Rotation())
sketch17.addGeometry([
    Part.LineSegment(Vector(26.3, 29, 0), Vector(26.3, 42.9, 0)),
    Part.LineSegment(Vector(26.3, 42.9, 0), Vector(27.2, 42.9, 0)),
    Part.LineSegment(Vector(27.2, 42.9, 0), Vector(27.2, 29, 0)),
    Part.LineSegment(Vector(27.2, 29, 0), Vector(26.3, 29, 0)),
], False)
sketch17.addConstraint([
    Sketcher.Constraint("Coincident", 0, 2, 1, 1),
    Sketcher.Constraint("Coincident", 1, 2, 2, 1),
    Sketcher.Constraint("Coincident", 2, 2, 3, 1),
    Sketcher.Constraint("Coincident", 3, 2, 0, 1),
    Sketcher.Constraint("Vertical", 0),
    Sketcher.Constraint("Horizontal", 1),
    Sketcher.Constraint("Vertical", 2),
    Sketcher.Constraint("Horizontal", 3),
    Sketcher.Constraint("DistanceX", 1, 1, 1, 2, Q("0.869614 mm")),
    Sketcher.Constraint("DistanceY", 0, 1, 0, 2, Q("13.953535 mm")),
    Sketcher.Constraint("DistanceX", -1, 1, 1, 2, Q("27.182891 mm")),
    Sketcher.Constraint("DistanceY", -1, 1, 2, 2, Q("28.955168 mm")),
])
pad7 = body.newObject("PartDesign::Pad", "Pad006")
pad7.Profile = sketch17
pad7.Length = 5
pad7.Reversed = True

# Sketch on XZ plane
sketch18 = body.newObject("Sketcher::SketchObject", "Sketch017")
sketch18.AttachmentSupport = (doc.getObject("XZ_Plane"), [""])
sketch18.MapMode = "FlatFace"
sketch18.AttachmentOffset = App.Placement(Vector(0, 0, -9), App.Rotation())
sketch18.addGeometry([
    Part.LineSegment(Vector(27.4, 29.1, 0), Vector(27.4, 43, 0)),
    Part.LineSegment(Vector(27.4, 43, 0), Vector(29.7, 43, 0)),
    Part.LineSegment(Vector(29.7, 43, 0), Vector(29.7, 29.1, 0)),
    Part.LineSegment(Vector(29.7, 29.1, 0), Vector(27.4, 29.1, 0)),
], False)
sketch18.addConstraint([
    Sketcher.Constraint("Coincident", 0, 2, 1, 1),
    Sketcher.Constraint("Coincident", 1, 2, 2, 1),
    Sketcher.Constraint("Coincident", 2, 2, 3, 1),
    Sketcher.Constraint("Coincident", 3, 2, 0, 1),
    Sketcher.Constraint("Vertical", 0),
    Sketcher.Constraint("Horizontal", 1),
    Sketcher.Constraint("Vertical", 2),
    Sketcher.Constraint("Horizontal", 3),
    Sketcher.Constraint("DistanceX", 1, 1, 1, 2, Q("2.35407 mm")),
    Sketcher.Constraint("DistanceY", 0, 1, 0, 2, Q("13.876017 mm")),
    Sketcher.Constraint("DistanceY", -1, 1, 2, 2, Q("29.08463 mm")),
    Sketcher.Constraint("DistanceX", -1, 1, 0, 2, Q("27.370622 mm")),
])
pocket9 = body.newObject("PartDesign::Pocket", "Pocket008")
pocket9.Profile = sketch18
pocket9.Length = 5
pocket9.Reversed = True

# Sketch on YZ plane
sketch19 = body.newObject("Sketcher::SketchObject", "Sketch018")
sketch19.AttachmentSupport = (doc.getObject("YZ_Plane"), [""])
sketch19.MapMode = "FlatFace"
sketch19.AttachmentOffset = App.Placement(Vector(0, 0, 9), App.Rotation())
sketch19.addGeometry([
    Part.LineSegment(Vector(9, 40, 0), Vector(3, 40, 0)),
    Part.LineSegment(Vector(3, 40, 0), Vector(3, 31, 0)),
    Part.LineSegment(Vector(3, 31, 0), Vector(9, 31, 0)),
    Part.LineSegment(Vector(9, 31, 0), Vector(9, 40, 0)),
], False)
sketch19.addConstraint([
    Sketcher.Constraint("Coincident", 0, 2, 1, 1),
    Sketcher.Constraint("Coincident", 1, 2, 2, 1),
    Sketcher.Constraint("Coincident", 2, 2, 3, 1),
    Sketcher.Constraint("Coincident", 3, 2, 0, 1),
    Sketcher.Constraint("Horizontal", 0),
    Sketcher.Constraint("Vertical", 1),
    Sketcher.Constraint("Horizontal", 2),
    Sketcher.Constraint("Vertical", 3),
    Sketcher.Constraint("DistanceX", -1, 1, 2, 2, Q("9 mm")),
    Sketcher.Constraint("DistanceX", 0, 2, 0, 1, Q("6.066927 mm")),
    Sketcher.Constraint("DistanceY", 1, 2, 1, 1, Q("9.117006 mm")),
    Sketcher.Constraint("DistanceY", -1, 1, 1, 2, Q("31.296041 mm")),
])
pocket10 = body.newObject("PartDesign::Pocket", "Pocket009")
pocket10.Profile = sketch19
pocket10.Length = 1

# Sketch on YZ plane
sketch20 = body.newObject("Sketcher::SketchObject", "Sketch019")
sketch20.AttachmentSupport = (doc.getObject("YZ_Plane"), [""])
sketch20.MapMode = "FlatFace"
sketch20.AttachmentOffset = App.Placement(Vector(0, 0, 9), App.Rotation())
sketch20.addGeometry([
    Part.LineSegment(Vector(9, 17, 0), Vector(3, 17, 0)),
    Part.LineSegment(Vector(3, 17, 0), Vector(3, 7, 0)),
    Part.LineSegment(Vector(3, 7, 0), Vector(9, 7, 0)),
    Part.LineSegment(Vector(9, 7, 0), Vector(9, 17, 0)),
], False)
sketch20.addConstraint([
    Sketcher.Constraint("Coincident", 0, 2, 1, 1),
    Sketcher.Constraint("Coincident", 1, 2, 2, 1),
    Sketcher.Constraint("Coincident", 2, 2, 3, 1),
    Sketcher.Constraint("Coincident", 3, 2, 0, 1),
    Sketcher.Constraint("Horizontal", 0),
    Sketcher.Constraint("Vertical", 1),
    Sketcher.Constraint("Horizontal", 2),
    Sketcher.Constraint("Vertical", 3),
    Sketcher.Constraint("DistanceX", -1, 1, 2, 2, Q("9 mm")),
    Sketcher.Constraint("DistanceY", -1, 1, 1, 2, Q("7.371501 mm")),
    Sketcher.Constraint("DistanceX", 0, 2, 0, 1, Q("5.926215 mm")),
    Sketcher.Constraint("DistanceY", 1, 2, 1, 1, Q("9.176846 mm")),
])
pocket11 = body.newObject("PartDesign::Pocket", "Pocket010")
pocket11.Profile = sketch20
pocket11.Length = 1

# Sketch on YZ plane
sketch21 = body.newObject("Sketcher::SketchObject", "Sketch020")
sketch21.AttachmentSupport = (doc.getObject("YZ_Plane"), [""])
sketch21.MapMode = "FlatFace"
sketch21.AttachmentOffset = App.Placement(Vector(0, 0, 9), App.Rotation())
sketch21.addGeometry([
    Part.LineSegment(Vector(9, -7, 0), Vector(3, -7, 0)),
    Part.LineSegment(Vector(3, -7, 0), Vector(3, -16, 0)),
    Part.LineSegment(Vector(3, -16, 0), Vector(9, -16, 0)),
    Part.LineSegment(Vector(9, -16, 0), Vector(9, -7, 0)),
], False)
sketch21.addConstraint([
    Sketcher.Constraint("Coincident", 0, 2, 1, 1),
    Sketcher.Constraint("Coincident", 1, 2, 2, 1),
    Sketcher.Constraint("Coincident", 2, 2, 3, 1),
    Sketcher.Constraint("Coincident", 3, 2, 0, 1),
    Sketcher.Constraint("Horizontal", 0),
    Sketcher.Constraint("Vertical", 1),
    Sketcher.Constraint("Horizontal", 2),
    Sketcher.Constraint("Vertical", 3),
    Sketcher.Constraint("DistanceY", 1, 2, 1, 1, Q("9.06273 mm")),
    Sketcher.Constraint("DistanceX", 0, 2, 0, 1, Q("5.966133 mm")),
    Sketcher.Constraint("DistanceX", -1, 1, 0, 2, Q("3.285693 mm")),
    Sketcher.Constraint("DistanceY", 0, 2, -1, 1, Q("7.384574 mm")),
])
pocket12 = body.newObject("PartDesign::Pocket", "Pocket011")
pocket12.Profile = sketch21
pocket12.Length = 1

# Sketch on YZ plane
sketch22 = body.newObject("Sketcher::SketchObject", "Sketch021")
sketch22.AttachmentSupport = (doc.getObject("YZ_Plane"), [""])
sketch22.MapMode = "FlatFace"
sketch22.AttachmentOffset = App.Placement(Vector(0, 0, 9), App.Rotation())
sketch22.addGeometry([
    Part.LineSegment(Vector(9, -34, 0), Vector(3, -34, 0)),
    Part.LineSegment(Vector(3, -34, 0), Vector(3, -43, 0)),
    Part.LineSegment(Vector(3, -43, 0), Vector(9, -43, 0)),
    Part.LineSegment(Vector(9, -43, 0), Vector(9, -34, 0)),
], False)
sketch22.addConstraint([
    Sketcher.Constraint("Coincident", 0, 2, 1, 1),
    Sketcher.Constraint("Coincident", 1, 2, 2, 1),
    Sketcher.Constraint("Coincident", 2, 2, 3, 1),
    Sketcher.Constraint("Coincident", 3, 2, 0, 1),
    Sketcher.Constraint("Horizontal", 0),
    Sketcher.Constraint("Vertical", 1),
    Sketcher.Constraint("Horizontal", 2),
    Sketcher.Constraint("Vertical", 3),
    Sketcher.Constraint("DistanceX", -1, 1, 2, 2, Q("9 mm")),
    Sketcher.Constraint("DistanceY", 1, 2, 1, 1, Q("8.803701 mm")),
    Sketcher.Constraint("DistanceX", 0, 2, 0, 1, Q("6.022436 mm")),
    Sketcher.Constraint("DistanceY", 0, 2, -1, 1, Q("34.361785 mm")),
])
pocket13 = body.newObject("PartDesign::Pocket", "Pocket012")
pocket13.Profile = sketch22
pocket13.Length = 1

doc.recompute()
